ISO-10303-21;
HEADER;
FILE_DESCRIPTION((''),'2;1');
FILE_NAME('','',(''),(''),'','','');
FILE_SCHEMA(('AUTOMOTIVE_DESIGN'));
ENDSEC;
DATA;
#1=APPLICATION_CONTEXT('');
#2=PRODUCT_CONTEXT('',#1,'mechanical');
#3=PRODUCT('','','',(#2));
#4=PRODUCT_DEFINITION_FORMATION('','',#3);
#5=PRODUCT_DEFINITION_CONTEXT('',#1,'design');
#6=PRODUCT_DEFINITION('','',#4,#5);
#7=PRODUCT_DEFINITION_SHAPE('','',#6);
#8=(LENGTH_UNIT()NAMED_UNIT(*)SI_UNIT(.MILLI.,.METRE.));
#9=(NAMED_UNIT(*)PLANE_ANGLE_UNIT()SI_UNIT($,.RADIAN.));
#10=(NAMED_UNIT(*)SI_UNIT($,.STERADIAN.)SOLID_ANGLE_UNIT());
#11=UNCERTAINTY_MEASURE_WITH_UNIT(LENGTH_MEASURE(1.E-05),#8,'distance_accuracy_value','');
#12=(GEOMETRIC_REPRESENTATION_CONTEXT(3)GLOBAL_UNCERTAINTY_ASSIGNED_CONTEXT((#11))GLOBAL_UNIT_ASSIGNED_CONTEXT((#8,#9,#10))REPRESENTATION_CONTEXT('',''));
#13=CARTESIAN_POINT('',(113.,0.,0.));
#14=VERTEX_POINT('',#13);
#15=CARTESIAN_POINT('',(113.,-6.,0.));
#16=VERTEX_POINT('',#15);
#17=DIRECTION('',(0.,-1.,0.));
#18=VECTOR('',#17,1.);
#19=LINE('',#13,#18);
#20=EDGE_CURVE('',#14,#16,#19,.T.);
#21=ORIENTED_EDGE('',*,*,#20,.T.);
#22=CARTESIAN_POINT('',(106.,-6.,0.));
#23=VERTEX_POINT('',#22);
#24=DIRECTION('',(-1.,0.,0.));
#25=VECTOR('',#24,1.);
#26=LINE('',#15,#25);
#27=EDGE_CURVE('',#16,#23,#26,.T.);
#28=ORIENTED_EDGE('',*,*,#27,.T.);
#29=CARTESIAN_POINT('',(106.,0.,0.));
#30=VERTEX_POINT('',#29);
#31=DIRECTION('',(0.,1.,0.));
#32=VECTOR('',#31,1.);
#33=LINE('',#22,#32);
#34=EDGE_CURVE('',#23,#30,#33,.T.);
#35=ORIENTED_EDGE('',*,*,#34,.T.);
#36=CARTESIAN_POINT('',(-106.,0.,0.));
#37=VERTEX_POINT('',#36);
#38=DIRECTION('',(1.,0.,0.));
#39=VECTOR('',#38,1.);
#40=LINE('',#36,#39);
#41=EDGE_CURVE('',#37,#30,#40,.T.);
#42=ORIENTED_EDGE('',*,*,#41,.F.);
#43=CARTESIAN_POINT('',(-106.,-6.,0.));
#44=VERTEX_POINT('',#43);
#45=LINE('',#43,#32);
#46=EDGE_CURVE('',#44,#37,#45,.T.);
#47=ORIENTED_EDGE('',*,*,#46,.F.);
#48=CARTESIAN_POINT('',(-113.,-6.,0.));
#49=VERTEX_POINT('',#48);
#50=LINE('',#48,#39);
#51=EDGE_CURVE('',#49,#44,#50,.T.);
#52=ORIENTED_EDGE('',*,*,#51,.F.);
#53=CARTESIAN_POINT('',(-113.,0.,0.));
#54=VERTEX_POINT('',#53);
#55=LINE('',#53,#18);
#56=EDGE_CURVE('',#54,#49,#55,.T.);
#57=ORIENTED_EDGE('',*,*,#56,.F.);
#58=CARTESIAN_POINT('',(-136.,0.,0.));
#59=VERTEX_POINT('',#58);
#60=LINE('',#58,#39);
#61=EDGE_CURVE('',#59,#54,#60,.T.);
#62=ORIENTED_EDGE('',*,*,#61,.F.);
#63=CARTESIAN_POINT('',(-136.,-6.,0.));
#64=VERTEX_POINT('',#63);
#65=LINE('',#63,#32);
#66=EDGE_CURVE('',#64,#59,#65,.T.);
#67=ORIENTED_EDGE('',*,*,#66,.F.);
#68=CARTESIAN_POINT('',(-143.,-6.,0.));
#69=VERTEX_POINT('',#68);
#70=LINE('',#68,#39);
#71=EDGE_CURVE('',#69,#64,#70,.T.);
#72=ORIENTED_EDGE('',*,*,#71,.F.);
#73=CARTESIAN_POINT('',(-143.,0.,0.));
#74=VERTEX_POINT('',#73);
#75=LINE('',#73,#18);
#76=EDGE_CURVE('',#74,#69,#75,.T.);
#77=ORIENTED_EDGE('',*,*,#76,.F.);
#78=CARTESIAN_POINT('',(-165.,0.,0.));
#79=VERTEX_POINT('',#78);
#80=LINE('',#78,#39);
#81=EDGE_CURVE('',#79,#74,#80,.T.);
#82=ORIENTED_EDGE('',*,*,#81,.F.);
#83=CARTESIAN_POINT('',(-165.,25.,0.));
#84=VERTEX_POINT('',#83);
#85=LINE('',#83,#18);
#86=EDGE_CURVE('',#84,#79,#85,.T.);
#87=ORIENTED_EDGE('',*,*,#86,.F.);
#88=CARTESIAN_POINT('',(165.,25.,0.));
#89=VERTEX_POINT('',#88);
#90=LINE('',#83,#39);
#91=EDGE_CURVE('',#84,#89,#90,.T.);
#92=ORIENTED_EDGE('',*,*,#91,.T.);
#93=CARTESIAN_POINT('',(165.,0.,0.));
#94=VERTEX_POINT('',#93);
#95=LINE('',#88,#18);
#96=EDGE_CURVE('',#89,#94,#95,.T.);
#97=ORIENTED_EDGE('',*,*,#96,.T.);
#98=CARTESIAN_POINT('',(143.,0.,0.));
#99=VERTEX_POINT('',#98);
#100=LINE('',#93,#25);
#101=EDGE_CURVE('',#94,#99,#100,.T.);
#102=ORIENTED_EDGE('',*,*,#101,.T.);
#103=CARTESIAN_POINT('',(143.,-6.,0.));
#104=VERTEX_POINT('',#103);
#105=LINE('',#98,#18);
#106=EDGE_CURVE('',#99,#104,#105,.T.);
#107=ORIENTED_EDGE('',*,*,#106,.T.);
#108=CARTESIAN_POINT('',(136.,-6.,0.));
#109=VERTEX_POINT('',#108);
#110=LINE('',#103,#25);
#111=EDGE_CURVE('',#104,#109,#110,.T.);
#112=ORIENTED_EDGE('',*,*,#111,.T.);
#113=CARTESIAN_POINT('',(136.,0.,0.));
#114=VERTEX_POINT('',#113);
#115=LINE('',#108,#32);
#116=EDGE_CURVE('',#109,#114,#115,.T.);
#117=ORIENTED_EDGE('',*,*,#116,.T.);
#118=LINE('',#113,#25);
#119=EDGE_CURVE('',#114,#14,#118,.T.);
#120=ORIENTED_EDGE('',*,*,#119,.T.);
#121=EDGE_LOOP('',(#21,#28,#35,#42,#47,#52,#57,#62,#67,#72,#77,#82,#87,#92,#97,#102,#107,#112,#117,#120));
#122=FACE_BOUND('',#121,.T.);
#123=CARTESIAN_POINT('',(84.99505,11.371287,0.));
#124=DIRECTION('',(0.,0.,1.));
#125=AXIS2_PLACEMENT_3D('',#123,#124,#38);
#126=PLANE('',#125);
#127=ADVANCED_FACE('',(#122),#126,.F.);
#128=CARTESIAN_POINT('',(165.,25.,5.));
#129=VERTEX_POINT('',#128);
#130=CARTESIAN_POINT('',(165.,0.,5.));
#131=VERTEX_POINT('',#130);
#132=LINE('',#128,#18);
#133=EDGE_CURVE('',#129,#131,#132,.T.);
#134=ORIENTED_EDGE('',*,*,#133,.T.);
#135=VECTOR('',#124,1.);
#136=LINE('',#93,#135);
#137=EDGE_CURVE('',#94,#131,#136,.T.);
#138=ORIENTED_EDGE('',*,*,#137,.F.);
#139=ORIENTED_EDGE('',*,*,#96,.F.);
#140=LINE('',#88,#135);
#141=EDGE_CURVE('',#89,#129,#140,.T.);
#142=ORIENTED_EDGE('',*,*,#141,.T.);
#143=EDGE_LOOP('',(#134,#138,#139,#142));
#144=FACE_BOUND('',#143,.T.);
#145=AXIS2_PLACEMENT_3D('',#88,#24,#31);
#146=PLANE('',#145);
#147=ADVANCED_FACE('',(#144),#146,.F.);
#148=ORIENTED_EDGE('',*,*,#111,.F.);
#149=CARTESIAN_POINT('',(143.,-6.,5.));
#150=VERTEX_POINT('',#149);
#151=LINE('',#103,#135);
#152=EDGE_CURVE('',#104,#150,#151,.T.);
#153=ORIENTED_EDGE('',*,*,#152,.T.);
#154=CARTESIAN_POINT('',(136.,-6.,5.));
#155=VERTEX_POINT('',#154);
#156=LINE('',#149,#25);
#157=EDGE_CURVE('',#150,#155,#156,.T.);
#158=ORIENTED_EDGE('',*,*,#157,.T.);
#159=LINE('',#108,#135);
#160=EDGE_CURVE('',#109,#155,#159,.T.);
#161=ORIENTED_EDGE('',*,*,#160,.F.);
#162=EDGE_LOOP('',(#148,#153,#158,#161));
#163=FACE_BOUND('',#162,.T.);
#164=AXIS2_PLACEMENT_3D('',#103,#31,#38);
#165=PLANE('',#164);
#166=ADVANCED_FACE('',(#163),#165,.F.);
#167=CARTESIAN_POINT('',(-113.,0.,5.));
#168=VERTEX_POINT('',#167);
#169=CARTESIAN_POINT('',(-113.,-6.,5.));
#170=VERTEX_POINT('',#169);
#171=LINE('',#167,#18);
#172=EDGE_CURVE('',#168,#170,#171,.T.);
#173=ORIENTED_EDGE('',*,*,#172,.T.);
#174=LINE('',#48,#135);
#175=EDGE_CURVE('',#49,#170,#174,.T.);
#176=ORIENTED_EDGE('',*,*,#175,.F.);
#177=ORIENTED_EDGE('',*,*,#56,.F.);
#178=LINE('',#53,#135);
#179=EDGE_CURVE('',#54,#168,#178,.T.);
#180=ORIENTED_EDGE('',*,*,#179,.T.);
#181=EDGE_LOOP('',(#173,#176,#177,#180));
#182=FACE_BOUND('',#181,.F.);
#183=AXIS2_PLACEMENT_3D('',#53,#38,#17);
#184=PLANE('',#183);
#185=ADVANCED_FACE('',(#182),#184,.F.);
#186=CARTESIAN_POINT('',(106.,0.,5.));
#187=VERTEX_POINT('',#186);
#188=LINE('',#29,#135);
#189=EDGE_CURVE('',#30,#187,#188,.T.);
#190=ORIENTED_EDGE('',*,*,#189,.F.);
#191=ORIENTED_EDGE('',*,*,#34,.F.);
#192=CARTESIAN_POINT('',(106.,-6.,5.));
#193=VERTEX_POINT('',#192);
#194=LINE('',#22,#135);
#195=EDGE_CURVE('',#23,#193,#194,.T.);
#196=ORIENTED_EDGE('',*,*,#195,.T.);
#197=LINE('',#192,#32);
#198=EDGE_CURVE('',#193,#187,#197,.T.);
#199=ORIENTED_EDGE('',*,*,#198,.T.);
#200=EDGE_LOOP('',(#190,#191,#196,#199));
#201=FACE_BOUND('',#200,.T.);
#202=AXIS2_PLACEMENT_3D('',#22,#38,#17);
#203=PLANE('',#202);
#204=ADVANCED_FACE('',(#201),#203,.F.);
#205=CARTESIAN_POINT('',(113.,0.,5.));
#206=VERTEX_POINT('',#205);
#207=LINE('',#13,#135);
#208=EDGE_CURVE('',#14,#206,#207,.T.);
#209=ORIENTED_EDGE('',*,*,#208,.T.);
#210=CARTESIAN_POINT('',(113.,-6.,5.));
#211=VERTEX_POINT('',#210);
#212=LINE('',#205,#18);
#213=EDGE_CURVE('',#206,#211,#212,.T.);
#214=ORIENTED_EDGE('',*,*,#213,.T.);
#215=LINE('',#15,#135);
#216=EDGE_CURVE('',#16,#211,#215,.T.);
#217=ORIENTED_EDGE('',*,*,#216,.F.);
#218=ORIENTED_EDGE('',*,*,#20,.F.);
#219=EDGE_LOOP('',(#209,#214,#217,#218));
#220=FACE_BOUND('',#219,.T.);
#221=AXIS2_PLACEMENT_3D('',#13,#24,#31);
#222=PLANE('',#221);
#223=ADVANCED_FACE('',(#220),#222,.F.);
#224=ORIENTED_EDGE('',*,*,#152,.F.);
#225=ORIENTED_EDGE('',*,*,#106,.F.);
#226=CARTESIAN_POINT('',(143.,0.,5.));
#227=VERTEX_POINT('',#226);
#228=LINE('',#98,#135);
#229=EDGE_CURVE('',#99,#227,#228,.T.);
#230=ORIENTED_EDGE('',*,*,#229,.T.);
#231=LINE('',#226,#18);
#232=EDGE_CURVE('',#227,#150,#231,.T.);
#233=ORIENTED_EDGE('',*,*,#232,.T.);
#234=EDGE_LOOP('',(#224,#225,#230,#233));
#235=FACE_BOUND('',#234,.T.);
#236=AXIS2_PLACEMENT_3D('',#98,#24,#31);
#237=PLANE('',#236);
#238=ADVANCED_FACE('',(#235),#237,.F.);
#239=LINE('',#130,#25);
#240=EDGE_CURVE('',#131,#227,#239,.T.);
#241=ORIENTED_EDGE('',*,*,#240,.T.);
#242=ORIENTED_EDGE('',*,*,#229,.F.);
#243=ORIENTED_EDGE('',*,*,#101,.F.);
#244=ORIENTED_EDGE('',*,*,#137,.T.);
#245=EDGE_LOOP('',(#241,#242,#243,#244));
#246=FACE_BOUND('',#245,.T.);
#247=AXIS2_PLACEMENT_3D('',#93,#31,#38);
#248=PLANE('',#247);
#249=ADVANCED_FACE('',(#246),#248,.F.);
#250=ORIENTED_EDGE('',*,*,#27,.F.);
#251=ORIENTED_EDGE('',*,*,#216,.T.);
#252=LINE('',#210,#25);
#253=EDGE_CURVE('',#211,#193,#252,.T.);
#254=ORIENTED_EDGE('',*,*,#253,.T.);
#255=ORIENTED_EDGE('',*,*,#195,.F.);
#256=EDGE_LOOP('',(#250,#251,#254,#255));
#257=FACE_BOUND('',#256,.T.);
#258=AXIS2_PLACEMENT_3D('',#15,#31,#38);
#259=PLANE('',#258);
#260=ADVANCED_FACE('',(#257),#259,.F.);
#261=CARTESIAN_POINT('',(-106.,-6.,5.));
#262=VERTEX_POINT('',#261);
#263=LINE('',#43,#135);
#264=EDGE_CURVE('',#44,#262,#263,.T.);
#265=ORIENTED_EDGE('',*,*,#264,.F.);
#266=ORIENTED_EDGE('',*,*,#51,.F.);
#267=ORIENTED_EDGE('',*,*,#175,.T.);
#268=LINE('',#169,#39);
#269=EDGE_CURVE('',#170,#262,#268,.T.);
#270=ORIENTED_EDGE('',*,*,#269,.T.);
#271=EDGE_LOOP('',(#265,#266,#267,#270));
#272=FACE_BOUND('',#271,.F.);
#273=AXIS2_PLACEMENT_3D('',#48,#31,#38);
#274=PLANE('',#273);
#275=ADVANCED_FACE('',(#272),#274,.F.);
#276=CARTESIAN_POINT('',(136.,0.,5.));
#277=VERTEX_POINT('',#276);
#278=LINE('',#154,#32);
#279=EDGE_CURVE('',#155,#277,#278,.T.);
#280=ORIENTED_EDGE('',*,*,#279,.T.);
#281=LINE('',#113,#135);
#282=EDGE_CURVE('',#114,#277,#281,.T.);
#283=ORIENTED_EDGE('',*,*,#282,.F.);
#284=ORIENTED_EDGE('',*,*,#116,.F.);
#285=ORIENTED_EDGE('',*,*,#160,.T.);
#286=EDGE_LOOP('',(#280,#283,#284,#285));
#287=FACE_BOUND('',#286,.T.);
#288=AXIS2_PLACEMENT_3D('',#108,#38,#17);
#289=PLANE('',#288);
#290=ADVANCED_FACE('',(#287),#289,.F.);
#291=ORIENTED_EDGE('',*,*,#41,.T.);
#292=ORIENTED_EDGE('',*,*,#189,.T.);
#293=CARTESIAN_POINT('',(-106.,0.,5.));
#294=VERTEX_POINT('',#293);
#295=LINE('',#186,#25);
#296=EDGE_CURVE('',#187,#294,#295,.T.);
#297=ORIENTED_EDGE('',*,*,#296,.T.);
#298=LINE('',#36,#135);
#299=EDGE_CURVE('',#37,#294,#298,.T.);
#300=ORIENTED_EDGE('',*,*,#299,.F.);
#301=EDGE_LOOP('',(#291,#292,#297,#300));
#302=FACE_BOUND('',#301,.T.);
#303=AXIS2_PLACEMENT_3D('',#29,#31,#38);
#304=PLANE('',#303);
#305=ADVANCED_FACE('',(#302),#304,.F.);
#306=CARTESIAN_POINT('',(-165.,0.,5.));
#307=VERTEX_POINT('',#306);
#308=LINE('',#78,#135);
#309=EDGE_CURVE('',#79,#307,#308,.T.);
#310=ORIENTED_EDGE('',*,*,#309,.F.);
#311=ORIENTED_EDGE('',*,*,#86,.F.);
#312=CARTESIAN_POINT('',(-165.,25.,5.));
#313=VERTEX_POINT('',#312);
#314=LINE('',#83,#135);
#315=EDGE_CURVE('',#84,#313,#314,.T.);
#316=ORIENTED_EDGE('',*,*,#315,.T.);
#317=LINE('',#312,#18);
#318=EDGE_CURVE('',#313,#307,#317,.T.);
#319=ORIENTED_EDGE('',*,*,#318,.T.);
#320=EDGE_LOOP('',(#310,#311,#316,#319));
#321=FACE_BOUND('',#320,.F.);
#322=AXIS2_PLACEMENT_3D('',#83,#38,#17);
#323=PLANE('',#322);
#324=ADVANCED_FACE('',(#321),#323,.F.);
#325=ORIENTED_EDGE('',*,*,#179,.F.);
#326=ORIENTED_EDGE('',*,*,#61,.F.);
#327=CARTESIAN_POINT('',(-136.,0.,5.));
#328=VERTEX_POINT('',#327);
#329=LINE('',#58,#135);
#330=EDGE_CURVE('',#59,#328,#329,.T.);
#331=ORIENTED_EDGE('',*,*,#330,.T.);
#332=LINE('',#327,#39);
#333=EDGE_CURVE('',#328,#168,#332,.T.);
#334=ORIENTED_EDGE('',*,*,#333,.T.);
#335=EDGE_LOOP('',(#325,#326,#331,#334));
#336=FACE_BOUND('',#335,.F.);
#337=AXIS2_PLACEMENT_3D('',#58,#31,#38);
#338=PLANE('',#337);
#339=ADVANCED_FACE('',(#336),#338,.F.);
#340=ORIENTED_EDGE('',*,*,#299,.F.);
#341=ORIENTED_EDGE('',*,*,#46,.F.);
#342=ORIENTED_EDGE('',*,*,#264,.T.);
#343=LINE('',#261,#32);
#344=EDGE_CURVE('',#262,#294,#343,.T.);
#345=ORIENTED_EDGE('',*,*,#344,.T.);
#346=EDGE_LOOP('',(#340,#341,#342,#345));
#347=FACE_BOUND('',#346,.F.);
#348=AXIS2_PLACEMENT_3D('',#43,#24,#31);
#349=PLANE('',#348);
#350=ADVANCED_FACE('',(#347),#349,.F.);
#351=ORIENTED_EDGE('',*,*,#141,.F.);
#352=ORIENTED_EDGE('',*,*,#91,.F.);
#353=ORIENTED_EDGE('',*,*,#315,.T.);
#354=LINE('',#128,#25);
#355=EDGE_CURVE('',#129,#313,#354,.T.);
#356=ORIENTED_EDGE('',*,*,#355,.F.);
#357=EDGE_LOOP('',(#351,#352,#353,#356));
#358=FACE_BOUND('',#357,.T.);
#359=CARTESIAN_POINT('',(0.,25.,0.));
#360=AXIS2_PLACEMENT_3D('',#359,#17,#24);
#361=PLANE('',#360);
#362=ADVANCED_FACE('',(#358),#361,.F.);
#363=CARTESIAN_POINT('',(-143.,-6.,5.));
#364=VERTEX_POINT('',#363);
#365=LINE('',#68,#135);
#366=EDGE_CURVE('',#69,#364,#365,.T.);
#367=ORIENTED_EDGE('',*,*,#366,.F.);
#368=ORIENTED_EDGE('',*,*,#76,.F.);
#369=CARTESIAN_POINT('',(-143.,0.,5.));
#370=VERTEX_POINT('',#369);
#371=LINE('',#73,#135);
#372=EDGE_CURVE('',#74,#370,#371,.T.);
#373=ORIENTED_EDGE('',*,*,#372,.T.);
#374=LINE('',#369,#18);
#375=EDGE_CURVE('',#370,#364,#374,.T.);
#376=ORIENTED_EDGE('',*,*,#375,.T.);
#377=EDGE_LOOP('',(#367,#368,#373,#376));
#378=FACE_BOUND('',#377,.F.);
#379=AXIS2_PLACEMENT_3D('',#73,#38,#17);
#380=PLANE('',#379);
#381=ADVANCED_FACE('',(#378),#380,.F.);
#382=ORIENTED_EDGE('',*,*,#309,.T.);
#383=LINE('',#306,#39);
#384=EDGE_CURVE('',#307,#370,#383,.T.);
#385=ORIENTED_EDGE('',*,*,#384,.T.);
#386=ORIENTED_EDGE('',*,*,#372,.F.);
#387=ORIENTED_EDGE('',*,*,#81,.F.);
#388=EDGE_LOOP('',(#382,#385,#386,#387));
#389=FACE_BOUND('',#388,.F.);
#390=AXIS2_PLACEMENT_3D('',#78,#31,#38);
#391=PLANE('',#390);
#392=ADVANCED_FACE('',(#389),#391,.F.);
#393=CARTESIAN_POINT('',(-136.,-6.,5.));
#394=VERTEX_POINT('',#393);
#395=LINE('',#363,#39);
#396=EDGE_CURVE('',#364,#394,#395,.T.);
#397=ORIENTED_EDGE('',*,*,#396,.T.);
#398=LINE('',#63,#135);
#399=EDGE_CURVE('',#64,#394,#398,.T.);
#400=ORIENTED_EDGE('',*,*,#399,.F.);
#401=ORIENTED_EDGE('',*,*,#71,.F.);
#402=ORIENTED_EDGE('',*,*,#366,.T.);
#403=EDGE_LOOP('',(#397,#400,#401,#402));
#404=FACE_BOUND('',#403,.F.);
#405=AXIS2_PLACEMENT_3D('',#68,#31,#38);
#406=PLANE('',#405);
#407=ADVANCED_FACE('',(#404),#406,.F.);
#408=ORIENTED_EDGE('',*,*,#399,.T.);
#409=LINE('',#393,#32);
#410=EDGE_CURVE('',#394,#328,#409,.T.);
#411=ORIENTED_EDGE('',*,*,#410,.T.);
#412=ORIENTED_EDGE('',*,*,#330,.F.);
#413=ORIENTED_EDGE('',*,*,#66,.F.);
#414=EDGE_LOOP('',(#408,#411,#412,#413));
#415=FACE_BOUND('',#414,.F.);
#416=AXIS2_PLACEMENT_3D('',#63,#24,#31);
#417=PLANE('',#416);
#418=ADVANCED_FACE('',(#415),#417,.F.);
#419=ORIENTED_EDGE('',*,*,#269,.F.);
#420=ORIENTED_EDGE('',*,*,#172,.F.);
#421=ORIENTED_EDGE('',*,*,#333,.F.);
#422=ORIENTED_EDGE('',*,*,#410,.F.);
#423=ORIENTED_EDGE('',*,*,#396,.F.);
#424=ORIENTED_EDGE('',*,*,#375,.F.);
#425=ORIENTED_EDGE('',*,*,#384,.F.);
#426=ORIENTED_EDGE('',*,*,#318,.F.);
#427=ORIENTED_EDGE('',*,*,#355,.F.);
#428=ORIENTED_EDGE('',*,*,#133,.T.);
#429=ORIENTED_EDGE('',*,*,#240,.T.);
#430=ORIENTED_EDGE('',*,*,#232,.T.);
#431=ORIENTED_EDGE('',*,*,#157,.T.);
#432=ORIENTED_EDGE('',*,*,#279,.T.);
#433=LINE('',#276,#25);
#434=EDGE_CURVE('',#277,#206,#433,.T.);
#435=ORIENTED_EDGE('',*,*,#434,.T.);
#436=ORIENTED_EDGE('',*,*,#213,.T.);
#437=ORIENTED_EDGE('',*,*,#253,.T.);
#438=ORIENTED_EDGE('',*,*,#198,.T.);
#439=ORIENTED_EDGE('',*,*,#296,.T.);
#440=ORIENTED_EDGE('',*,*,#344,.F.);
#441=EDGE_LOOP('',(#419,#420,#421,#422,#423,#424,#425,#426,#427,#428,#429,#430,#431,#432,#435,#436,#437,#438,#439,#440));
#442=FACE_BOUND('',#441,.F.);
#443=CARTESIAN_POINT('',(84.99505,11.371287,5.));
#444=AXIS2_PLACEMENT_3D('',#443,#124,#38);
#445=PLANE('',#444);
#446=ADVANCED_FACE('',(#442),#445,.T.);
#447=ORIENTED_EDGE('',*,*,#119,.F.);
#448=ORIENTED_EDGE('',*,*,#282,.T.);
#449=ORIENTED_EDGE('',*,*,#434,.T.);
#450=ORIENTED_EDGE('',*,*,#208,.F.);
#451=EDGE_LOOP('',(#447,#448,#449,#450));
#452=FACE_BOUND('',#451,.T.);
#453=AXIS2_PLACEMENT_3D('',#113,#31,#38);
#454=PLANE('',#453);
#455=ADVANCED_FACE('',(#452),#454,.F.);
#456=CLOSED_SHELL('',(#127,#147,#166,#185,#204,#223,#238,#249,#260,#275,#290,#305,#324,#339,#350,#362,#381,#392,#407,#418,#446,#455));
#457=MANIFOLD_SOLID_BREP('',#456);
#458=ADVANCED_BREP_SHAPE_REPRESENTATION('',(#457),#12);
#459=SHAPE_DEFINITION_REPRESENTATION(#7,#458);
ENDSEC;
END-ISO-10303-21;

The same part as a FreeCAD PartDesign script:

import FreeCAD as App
import Part
import Sketcher

V = App.Vector

doc = App.newDocument("Part")
body = doc.addObject("PartDesign::Body", "Body")

# Sketch on XY plane
sketch1 = body.newObject("Sketcher::SketchObject", "Sketch")
sketch1.AttachmentSupport = (doc.getObject("XY_Plane"), [""])
sketch1.MapMode = "FlatFace"
sketch1.addGeometry(Part.LineSegment(V(-106, 0, 0), V(0, 0, 0)), False)
sketch1.addGeometry(Part.LineSegment(V(0, 0, 0), V(0, 25, 0)), False)
sketch1.addGeometry(Part.LineSegment(V(0, 25, 0), V(-165, 25, 0)), False)
sketch1.addGeometry(Part.LineSegment(V(-165, 25, 0), V(-165, 0, 0)), False)
sketch1.addGeometry(Part.LineSegment(V(-165, 0, 0), V(-143, 0, 0)), False)
sketch1.addGeometry(Part.LineSegment(V(-143, 0, 0), V(-143, -6, 0)), False)
sketch1.addGeometry(Part.LineSegment(V(-143, -6, 0), V(-136, -6, 0)), False)
sketch1.addGeometry(Part.LineSegment(V(-136, -6, 0), V(-136, 0, 0)), False)
sketch1.addGeometry(Part.LineSegment(V(-136, 0, 0), V(-113, 0, 0)), False)
sketch1.addGeometry(Part.LineSegment(V(-113, 0, 0), V(-113, -6, 0)), False)
sketch1.addGeometry(Part.LineSegment(V(-113, -6, 0), V(-106, -6, 0)), False)
sketch1.addGeometry(Part.LineSegment(V(-106, -6, 0), V(-106, 0, 0)), False)
sketch1.addConstraint(Sketcher.Constraint("Coincident", 0, 2, 1, 1))
sketch1.addConstraint(Sketcher.Constraint("Coincident", 1, 2, 2, 1))
sketch1.addConstraint(Sketcher.Constraint("Coincident", 2, 2, 3, 1))
sketch1.addConstraint(Sketcher.Constraint("Coincident", 3, 2, 4, 1))
sketch1.addConstraint(Sketcher.Constraint("Coincident", 4, 2, 5, 1))
sketch1.addConstraint(Sketcher.Constraint("Coincident", 5, 2, 6, 1))
sketch1.addConstraint(Sketcher.Constraint("Coincident", 6, 2, 7, 1))
sketch1.addConstraint(Sketcher.Constraint("Coincident", 7, 2, 8, 1))
sketch1.addConstraint(Sketcher.Constraint("Coincident", 8, 2, 9, 1))
sketch1.addConstraint(Sketcher.Constraint("Coincident", 9, 2, 10, 1))
sketch1.addConstraint(Sketcher.Constraint("Coincident", 10, 2, 11, 1))
sketch1.addConstraint(Sketcher.Constraint("Coincident", 11, 2, 0, 1))
sketch1.addConstraint(Sketcher.Constraint("Horizontal", 0))
sketch1.addConstraint(Sketcher.Constraint("Vertical", 1))
sketch1.addConstraint(Sketcher.Constraint("Horizontal", 2))
sketch1.addConstraint(Sketcher.Constraint("Vertical", 3))
sketch1.addConstraint(Sketcher.Constraint("Horizontal", 4))
sketch1.addConstraint(Sketcher.Constraint("Vertical", 5))
sketch1.addConstraint(Sketcher.Constraint("Horizontal", 6))
sketch1.addConstraint(Sketcher.Constraint("Vertical", 7))
sketch1.addConstraint(Sketcher.Constraint("Horizontal", 8))
sketch1.addConstraint(Sketcher.Constraint("Vertical", 9))
sketch1.addConstraint(Sketcher.Constraint("Horizontal", 10))
sketch1.addConstraint(Sketcher.Constraint("Vertical", 11))
sketch1.addConstraint(Sketcher.Constraint("Coincident", 0, 2, -1, 1))
sketch1.addConstraint(Sketcher.Constraint("PointOnObject", 3, 2, -1))
sketch1.addConstraint(Sketcher.Constraint("PointOnObject", 7, 2, -1))
sketch1.addConstraint(Sketcher.Constraint("Horizontal", 6, 2, 9, 2))
sketch1.addConstraint(Sketcher.Constraint("Equal", 6, 10))
sketch1.addConstraint(Sketcher.Constraint("DistanceX", 0, 1, 0, 2, 106.0))
sketch1.addConstraint(Sketcher.Constraint("DistanceX", 2, 2, 2, 1, 165.0))
sketch1.addConstraint(Sketcher.Constraint("DistanceX", 4, 1, 4, 2, 22.0))
sketch1.addConstraint(Sketcher.Constraint("DistanceX", 6, 1, 6, 2, 7.0))
sketch1.addConstraint(Sketcher.Constraint("DistanceY", 1, 1, 1, 2, 25.0))
sketch1.addConstraint(Sketcher.Constraint("DistanceY", 5, 2, 5, 1, 6.0))
pad1 = body.newObject("PartDesign::Pad", "Pad")
pad1.Profile = sketch1
pad1.Length = 5
body2 = doc.addObject("PartDesign::Body", "Body001")
doc.recompute()

body2.BaseFeature = body
doc.recompute()

mirroring = doc.addObject("Part::Mirroring", "Mirroring")
mirroring.Source = body
mirroring.Base = V(0, 12.5, 2.5)
mirroring.Normal = V(1, 0, 0)
body3 = doc.addObject("PartDesign::Body", "Body002")
body3.BaseFeature = mirroring
boolean = body2.newObject("PartDesign::Boolean", "Boolean")
boolean.Type = "Fuse"
boolean.addObjects([body3])
doc.recompute()
mirroring.Visibility = False

doc.recompute()
